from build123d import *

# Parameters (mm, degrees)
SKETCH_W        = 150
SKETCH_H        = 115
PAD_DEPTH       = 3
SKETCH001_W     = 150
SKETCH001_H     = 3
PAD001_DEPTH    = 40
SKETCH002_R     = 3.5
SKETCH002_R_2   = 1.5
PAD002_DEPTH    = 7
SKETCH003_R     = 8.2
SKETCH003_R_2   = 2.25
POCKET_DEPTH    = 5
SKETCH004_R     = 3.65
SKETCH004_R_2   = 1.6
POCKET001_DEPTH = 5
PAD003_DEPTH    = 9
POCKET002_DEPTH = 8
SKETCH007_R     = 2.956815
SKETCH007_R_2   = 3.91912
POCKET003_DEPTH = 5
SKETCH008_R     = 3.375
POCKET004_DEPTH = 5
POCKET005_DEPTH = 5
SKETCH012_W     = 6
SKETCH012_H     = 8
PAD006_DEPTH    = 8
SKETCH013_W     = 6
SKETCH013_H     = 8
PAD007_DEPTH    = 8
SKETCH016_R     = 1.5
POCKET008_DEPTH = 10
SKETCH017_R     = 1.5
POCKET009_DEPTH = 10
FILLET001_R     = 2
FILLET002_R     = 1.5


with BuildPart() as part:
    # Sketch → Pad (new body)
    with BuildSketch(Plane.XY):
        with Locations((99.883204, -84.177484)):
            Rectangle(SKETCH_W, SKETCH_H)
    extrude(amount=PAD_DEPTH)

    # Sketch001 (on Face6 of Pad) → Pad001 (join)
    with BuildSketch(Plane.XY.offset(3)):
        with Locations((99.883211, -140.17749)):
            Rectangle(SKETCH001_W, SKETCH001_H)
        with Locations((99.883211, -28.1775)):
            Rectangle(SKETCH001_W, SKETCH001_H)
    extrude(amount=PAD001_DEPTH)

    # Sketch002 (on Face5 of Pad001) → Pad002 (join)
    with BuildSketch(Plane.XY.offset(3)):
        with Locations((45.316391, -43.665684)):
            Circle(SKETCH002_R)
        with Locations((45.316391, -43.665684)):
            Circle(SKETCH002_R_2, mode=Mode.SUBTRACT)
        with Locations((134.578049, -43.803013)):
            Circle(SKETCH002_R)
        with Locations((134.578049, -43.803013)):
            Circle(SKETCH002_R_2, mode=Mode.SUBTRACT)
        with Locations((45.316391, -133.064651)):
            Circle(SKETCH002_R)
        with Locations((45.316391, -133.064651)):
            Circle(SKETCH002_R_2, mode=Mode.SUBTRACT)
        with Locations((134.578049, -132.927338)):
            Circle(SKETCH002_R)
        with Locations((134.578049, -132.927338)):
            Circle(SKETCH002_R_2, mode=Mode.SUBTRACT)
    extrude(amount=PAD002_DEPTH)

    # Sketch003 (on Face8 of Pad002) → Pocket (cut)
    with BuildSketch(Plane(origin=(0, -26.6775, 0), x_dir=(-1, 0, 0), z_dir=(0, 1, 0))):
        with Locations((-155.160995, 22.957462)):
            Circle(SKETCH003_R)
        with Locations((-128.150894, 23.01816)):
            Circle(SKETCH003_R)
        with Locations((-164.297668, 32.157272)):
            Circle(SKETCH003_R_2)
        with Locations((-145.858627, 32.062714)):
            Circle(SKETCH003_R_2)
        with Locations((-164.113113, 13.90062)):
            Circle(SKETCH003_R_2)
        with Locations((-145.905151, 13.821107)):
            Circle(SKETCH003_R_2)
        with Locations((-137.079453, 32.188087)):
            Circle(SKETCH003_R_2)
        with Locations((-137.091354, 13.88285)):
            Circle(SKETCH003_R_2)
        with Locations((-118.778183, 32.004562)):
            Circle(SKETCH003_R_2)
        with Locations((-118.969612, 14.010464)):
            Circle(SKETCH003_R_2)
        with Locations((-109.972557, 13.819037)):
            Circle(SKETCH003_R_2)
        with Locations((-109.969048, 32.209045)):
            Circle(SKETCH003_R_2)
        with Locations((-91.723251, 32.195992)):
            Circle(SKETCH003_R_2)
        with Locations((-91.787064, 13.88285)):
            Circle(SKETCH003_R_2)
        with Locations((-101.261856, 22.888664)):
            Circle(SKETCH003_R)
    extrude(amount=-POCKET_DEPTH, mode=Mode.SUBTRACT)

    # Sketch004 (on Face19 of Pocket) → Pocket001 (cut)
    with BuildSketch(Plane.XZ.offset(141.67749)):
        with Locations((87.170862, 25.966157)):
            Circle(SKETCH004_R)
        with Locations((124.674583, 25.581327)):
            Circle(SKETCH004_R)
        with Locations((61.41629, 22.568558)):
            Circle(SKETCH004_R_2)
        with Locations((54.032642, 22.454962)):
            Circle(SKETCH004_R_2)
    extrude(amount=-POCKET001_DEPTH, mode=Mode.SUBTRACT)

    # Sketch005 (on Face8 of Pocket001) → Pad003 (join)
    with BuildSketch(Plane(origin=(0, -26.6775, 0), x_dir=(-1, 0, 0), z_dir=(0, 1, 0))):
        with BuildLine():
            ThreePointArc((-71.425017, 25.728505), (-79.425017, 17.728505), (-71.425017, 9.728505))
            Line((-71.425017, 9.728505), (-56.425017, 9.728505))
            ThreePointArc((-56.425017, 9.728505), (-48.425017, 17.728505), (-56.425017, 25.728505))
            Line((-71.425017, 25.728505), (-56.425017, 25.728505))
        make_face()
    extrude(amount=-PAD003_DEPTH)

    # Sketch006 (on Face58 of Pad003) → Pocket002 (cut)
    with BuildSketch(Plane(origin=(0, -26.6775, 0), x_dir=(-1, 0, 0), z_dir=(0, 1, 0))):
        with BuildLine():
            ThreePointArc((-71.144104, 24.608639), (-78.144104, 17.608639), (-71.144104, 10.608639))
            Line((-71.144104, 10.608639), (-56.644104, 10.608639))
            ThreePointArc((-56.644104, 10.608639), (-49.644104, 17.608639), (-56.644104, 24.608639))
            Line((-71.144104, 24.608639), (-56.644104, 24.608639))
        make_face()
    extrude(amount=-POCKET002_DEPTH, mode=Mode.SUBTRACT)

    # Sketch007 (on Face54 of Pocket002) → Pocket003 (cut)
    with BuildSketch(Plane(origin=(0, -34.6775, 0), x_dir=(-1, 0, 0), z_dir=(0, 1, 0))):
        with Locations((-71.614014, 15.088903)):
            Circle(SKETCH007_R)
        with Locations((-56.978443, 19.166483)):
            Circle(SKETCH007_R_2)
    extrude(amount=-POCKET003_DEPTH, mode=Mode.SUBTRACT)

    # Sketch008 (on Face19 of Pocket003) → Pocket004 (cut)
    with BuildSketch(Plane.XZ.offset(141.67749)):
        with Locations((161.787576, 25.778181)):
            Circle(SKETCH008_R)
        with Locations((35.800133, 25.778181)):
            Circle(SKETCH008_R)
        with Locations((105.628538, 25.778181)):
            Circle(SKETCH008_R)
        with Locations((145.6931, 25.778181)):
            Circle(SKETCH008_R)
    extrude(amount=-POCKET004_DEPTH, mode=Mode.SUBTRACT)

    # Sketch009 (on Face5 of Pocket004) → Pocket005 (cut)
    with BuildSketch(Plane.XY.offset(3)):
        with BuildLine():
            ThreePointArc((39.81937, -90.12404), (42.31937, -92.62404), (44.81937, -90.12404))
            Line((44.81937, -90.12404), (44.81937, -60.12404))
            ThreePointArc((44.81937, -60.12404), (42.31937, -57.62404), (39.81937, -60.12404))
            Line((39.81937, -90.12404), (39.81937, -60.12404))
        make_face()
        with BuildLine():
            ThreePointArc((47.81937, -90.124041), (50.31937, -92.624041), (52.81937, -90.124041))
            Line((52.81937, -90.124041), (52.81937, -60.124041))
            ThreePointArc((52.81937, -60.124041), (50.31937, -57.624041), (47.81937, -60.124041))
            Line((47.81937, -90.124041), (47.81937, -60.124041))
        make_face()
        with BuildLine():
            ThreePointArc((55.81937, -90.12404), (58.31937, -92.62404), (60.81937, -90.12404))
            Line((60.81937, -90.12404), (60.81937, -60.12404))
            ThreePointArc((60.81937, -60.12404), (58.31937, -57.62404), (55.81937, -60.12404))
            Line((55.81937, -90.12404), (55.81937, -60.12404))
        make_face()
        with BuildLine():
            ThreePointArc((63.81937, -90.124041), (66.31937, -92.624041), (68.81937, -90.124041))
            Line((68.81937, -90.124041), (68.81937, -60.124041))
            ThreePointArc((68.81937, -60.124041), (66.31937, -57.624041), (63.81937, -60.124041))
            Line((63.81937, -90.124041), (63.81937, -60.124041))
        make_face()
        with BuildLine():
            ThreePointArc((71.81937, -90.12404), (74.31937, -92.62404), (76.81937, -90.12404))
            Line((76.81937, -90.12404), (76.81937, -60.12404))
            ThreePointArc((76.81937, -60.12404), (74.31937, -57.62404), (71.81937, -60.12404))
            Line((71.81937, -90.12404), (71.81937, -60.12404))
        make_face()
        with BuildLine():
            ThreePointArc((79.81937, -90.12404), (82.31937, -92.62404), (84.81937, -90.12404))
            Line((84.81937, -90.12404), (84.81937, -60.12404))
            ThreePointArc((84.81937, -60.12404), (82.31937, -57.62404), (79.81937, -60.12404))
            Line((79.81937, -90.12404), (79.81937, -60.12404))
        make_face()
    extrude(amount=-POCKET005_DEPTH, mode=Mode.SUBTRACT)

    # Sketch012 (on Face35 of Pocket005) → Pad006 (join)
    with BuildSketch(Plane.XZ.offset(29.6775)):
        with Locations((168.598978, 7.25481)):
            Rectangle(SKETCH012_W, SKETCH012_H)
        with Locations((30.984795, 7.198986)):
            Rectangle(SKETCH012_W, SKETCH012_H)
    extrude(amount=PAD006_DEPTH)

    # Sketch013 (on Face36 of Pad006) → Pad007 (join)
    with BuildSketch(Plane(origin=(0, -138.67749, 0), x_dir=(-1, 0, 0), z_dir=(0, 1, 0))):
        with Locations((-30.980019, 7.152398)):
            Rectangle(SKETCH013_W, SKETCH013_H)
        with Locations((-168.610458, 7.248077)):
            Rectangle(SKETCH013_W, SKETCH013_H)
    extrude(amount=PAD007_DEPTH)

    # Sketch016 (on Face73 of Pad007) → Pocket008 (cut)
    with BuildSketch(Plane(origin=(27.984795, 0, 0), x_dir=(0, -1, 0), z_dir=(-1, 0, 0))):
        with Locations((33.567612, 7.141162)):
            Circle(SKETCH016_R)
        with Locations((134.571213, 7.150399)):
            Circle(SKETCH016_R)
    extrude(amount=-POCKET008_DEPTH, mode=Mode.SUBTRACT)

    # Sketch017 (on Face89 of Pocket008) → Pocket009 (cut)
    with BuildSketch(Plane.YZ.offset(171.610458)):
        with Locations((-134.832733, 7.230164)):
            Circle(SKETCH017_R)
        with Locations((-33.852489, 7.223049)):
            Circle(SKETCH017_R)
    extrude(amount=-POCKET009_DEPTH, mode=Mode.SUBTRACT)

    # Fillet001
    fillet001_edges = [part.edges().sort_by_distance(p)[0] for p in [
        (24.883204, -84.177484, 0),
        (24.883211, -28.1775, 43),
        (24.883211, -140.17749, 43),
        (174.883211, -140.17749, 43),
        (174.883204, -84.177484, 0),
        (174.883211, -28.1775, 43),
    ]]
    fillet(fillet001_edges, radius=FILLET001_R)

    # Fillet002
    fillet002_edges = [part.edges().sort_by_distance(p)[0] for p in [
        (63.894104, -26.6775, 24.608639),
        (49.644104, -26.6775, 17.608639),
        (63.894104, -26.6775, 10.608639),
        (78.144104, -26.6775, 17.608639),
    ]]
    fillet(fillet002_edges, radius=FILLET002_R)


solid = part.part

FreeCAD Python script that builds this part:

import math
import FreeCAD as App
import Part
import Sketcher

V = App.Vector
Q = App.Units.Quantity


def edges_at(feature, points):
    """Names of the edges that pass closest to the given points."""
    edges = feature.Shape.Edges
    near = lambda p: min(range(len(edges)), key=lambda i: edges[i].distToShape(Part.Vertex(*p))[0])
    return sorted({f"Edge{near(p) + 1}" for p in points})


def add_polygon(sketch, points):
    """Adds a closed chain of lines whose ends are joined by coincident constraints."""
    first, n = sketch.GeometryCount, len(points)
    for a, b in zip(points, points[1:] + points[:1]):
        sketch.addGeometry(Part.LineSegment(App.Vector(*a, 0), App.Vector(*b, 0)), False)
    for i in range(n):
        sketch.addConstraint(Sketcher.Constraint("Coincident", first + i, 2, first + (i + 1) % n, 1))

doc = App.newDocument("Part")
body = doc.addObject("PartDesign::Body", "Body")

# Sketch on XY plane
sketch1 = doc.addObject("Sketcher::SketchObject", "Sketch")
body.addObject(sketch1)
sketch1.AttachmentSupport = (doc.XY_Plane, [""])
sketch1.MapMode = "FlatFace"
add_polygon(sketch1, [(24.883204, -26.677484), (24.883204, -141.677484), (174.883204, -141.677484), (174.883204, -26.677484)])  # lines 0-3
sketch1.addConstraint(Sketcher.Constraint("Vertical", 0))
sketch1.addConstraint(Sketcher.Constraint("Horizontal", 1))
sketch1.addConstraint(Sketcher.Constraint("Vertical", 2))
sketch1.addConstraint(Sketcher.Constraint("Horizontal", 3))
sketch1.addConstraint(Sketcher.Constraint("DistanceX", 1, 1, 1, 2, Q("150 mm")))
sketch1.addConstraint(Sketcher.Constraint("DistanceY", 0, 2, 0, 1, Q("115 mm")))
sketch1.addConstraint(Sketcher.Constraint("DistanceX", -1, 1, 0, 2, Q("24.883204 mm")))
sketch1.addConstraint(Sketcher.Constraint("DistanceY", 0, 2, -1, 1, Q("141.677484 mm")))
pad1 = doc.addObject("PartDesign::Pad", "Pad")
body.addObject(pad1)
pad1.Profile = sketch1
pad1.Length = 3

# Sketch on XY plane
sketch2 = doc.addObject("Sketcher::SketchObject", "Sketch001")
body.addObject(sketch2)
sketch2.AttachmentSupport = (doc.XY_Plane, [""])
sketch2.MapMode = "FlatFace"
sketch2.AttachmentOffset = App.Placement(V(0, 0, 3), App.Rotation())
add_polygon(sketch2, [(24.883211, -138.67749), (24.883211, -141.67749), (174.883211, -141.67749), (174.883211, -138.67749)])  # lines 0-3
add_polygon(sketch2, [(24.883211, -26.6775), (24.883211, -29.6775), (174.883211, -29.6775), (174.883211, -26.6775)])  # lines 4-7
sketch2.addConstraint(Sketcher.Constraint("Vertical", 0))
sketch2.addConstraint(Sketcher.Constraint("Horizontal", 1))
sketch2.addConstraint(Sketcher.Constraint("Vertical", 2))
sketch2.addConstraint(Sketcher.Constraint("Horizontal", 3))
sketch2.addConstraint(Sketcher.Constraint("Vertical", 4))
sketch2.addConstraint(Sketcher.Constraint("Horizontal", 5))
sketch2.addConstraint(Sketcher.Constraint("Vertical", 6))
sketch2.addConstraint(Sketcher.Constraint("Horizontal", 7))
sketch2.addConstraint(Sketcher.Constraint("Vertical", 3, 2, 4, 2))
sketch2.addConstraint(Sketcher.Constraint("Vertical", 2, 2, 5, 2))
sketch2.addConstraint(Sketcher.Constraint("Equal", 2, 4))
sketch2.addConstraint(Sketcher.Constraint("DistanceX", 1, 1, 1, 2, Q("150 mm")))
sketch2.addConstraint(Sketcher.Constraint("DistanceY", 0, 2, 0, 1, Q("3 mm")))
sketch2.addConstraint(Sketcher.Constraint("DistanceY", 4, 2, -1, 1, Q("29.6775 mm")))
sketch2.addConstraint(Sketcher.Constraint("DistanceX", -1, 1, 0, 2, Q("24.883211 mm")))
sketch2.addConstraint(Sketcher.Constraint("DistanceY", 0, 2, -1, 1, Q("141.67749 mm")))
pad2 = doc.addObject("PartDesign::Pad", "Pad001")
body.addObject(pad2)
pad2.Profile = sketch2
pad2.Length = 40

# Sketch on XY plane
sketch3 = doc.addObject("Sketcher::SketchObject", "Sketch002")
body.addObject(sketch3)
sketch3.AttachmentSupport = (doc.XY_Plane, [""])
sketch3.MapMode = "FlatFace"
sketch3.AttachmentOffset = App.Placement(V(0, 0, 3), App.Rotation())
sketch3.addGeometry(Part.Circle(V(45.316391, -43.665684, 0), V(0, 0, 1), 3.5), False)
sketch3.addGeometry(Part.Circle(V(45.316391, -43.665684, 0), V(0, 0, 1), 1.5), False)
sketch3.addGeometry(Part.Circle(V(134.578049, -43.803013, 0), V(0, 0, 1), 3.5), False)
sketch3.addGeometry(Part.Circle(V(134.578049, -43.803013, 0), V(0, 0, 1), 1.5), False)
sketch3.addGeometry(Part.Circle(V(45.316391, -133.064651, 0), V(0, 0, 1), 3.5), False)
sketch3.addGeometry(Part.Circle(V(45.316391, -133.064651, 0), V(0, 0, 1), 1.5), False)
sketch3.addGeometry(Part.Circle(V(134.578049, -132.927338, 0), V(0, 0, 1), 3.5), False)
sketch3.addGeometry(Part.Circle(V(134.578049, -132.927338, 0), V(0, 0, 1), 1.5), False)
sketch3.addConstraint(Sketcher.Constraint("Coincident", 1, 3, 0, 3))
sketch3.addConstraint(Sketcher.Constraint("Coincident", 3, 3, 2, 3))
sketch3.addConstraint(Sketcher.Constraint("Coincident", 5, 3, 4, 3))
sketch3.addConstraint(Sketcher.Constraint("Coincident", 7, 3, 6, 3))
sketch3.addConstraint(Sketcher.Constraint("Equal", 0, 2))
sketch3.addConstraint(Sketcher.Constraint("Equal", 1, 3))
sketch3.addConstraint(Sketcher.Constraint("Equal", 2, 4))
sketch3.addConstraint(Sketcher.Constraint("Equal", 3, 5))
sketch3.addConstraint(Sketcher.Constraint("Equal", 4, 6))
sketch3.addConstraint(Sketcher.Constraint("Equal", 5, 7))
sketch3.addConstraint(Sketcher.Constraint("Vertical", 1, 3, 4, 3))
sketch3.addConstraint(Sketcher.Constraint("Vertical", 3, 3, 6, 3))
sketch3.addConstraint(Sketcher.Constraint("Diameter", 0, Q("7 mm")))
sketch3.addConstraint(Sketcher.Constraint("Diameter", 1, Q("3 mm")))
sketch3.addConstraint(Sketcher.Constraint("DistanceX", -1, 1, 0, 3, Q("45.316391 mm")))
sketch3.addConstraint(Sketcher.Constraint("DistanceX", -1, 1, 2, 3, Q("134.578049 mm")))
sketch3.addConstraint(Sketcher.Constraint("DistanceY", 4, 3, -1, 1, Q("133.064651 mm")))
sketch3.addConstraint(Sketcher.Constraint("DistanceY", 6, 3, -1, 1, Q("132.927338 mm")))
sketch3.addConstraint(Sketcher.Constraint("DistanceY", 2, 3, 0, 3, Q("0.137329 mm")))
sketch3.addConstraint(Sketcher.Constraint("DistanceY", 4, 3, 2, 3, Q("89.261638 mm")))
pad3 = doc.addObject("PartDesign::Pad", "Pad002")
body.addObject(pad3)
pad3.Profile = sketch3
pad3.Length = 7

# Sketch on XZ plane
sketch4 = doc.addObject("Sketcher::SketchObject", "Sketch003")
body.addObject(sketch4)
sketch4.AttachmentSupport = (doc.XZ_Plane, [""])
sketch4.MapMode = "FlatFace"
sketch4.AttachmentOffset = App.Placement(V(0, 0, 26.6775), App.Rotation())
sketch4.addGeometry(Part.Circle(V(155.160995, 22.957462, 0), V(0, 0, 1), 8.2), False)
sketch4.addGeometry(Part.Circle(V(128.150894, 23.01816, 0), V(0, 0, 1), 8.2), False)
sketch4.addGeometry(Part.Circle(V(164.297668, 32.157272, 0), V(0, 0, 1), 2.25), False)
sketch4.addGeometry(Part.Circle(V(145.858627, 32.062714, 0), V(0, 0, 1), 2.25), False)
sketch4.addGeometry(Part.Circle(V(164.113113, 13.90062, 0), V(0, 0, 1), 2.25), False)
sketch4.addGeometry(Part.Circle(V(145.905151, 13.821107, 0), V(0, 0, 1), 2.25), False)
sketch4.addGeometry(Part.Circle(V(137.079453, 32.188087, 0), V(0, 0, 1), 2.25), False)
sketch4.addGeometry(Part.Circle(V(137.091354, 13.88285, 0), V(0, 0, 1), 2.25), False)
sketch4.addGeometry(Part.Circle(V(118.778183, 32.004562, 0), V(0, 0, 1), 2.25), False)
sketch4.addGeometry(Part.Circle(V(118.969612, 14.010464, 0), V(0, 0, 1), 2.25), False)
sketch4.addGeometry(Part.Circle(V(109.972557, 13.819037, 0), V(0, 0, 1), 2.25), False)
sketch4.addGeometry(Part.Circle(V(109.969048, 32.209045, 0), V(0, 0, 1), 2.25), False)
sketch4.addGeometry(Part.Circle(V(91.723251, 32.195992, 0), V(0, 0, 1), 2.25), False)
sketch4.addGeometry(Part.Circle(V(91.787064, 13.88285, 0), V(0, 0, 1), 2.25), False)
sketch4.addGeometry(Part.Circle(V(101.261856, 22.888664, 0), V(0, 0, 1), 8.2), False)
sketch4.addConstraint(Sketcher.Constraint("Equal", 0, 1))
sketch4.addConstraint(Sketcher.Constraint("Equal", 2, 3))
sketch4.addConstraint(Sketcher.Constraint("Equal", 3, 4))
sketch4.addConstraint(Sketcher.Constraint("Equal", 4, 5))
sketch4.addConstraint(Sketcher.Constraint("Equal", 5, 6))
sketch4.addConstraint(Sketcher.Constraint("Equal", 6, 7))
sketch4.addConstraint(Sketcher.Constraint("Equal", 7, 8))
sketch4.addConstraint(Sketcher.Constraint("Equal", 8, 9))
sketch4.addConstraint(Sketcher.Constraint("Equal", 9, 10))
sketch4.addConstraint(Sketcher.Constraint("Equal", 10, 11))
sketch4.addConstraint(Sketcher.Constraint("Equal", 11, 12))
sketch4.addConstraint(Sketcher.Constraint("Equal", 12, 13))
sketch4.addConstraint(Sketcher.Constraint("Equal", 1, 14))
sketch4.addConstraint(Sketcher.Constraint("Horizontal", 7, 3, 13, 3))
sketch4.addConstraint(Sketcher.Constraint("Diameter", 0, Q("16.4 mm")))
sketch4.addConstraint(Sketcher.Constraint("Diameter", 2, Q("4.5 mm")))
sketch4.addConstraint(Sketcher.Constraint("DistanceX", 1, 3, 0, 3, Q("27.010101 mm")))
sketch4.addConstraint(Sketcher.Constraint("DistanceY", 0, 3, 1, 3, Q("0.060698 mm")))
sketch4.addConstraint(Sketcher.Constraint("DistanceX", 6, 3, 7, 3, Q("0.011901 mm")))
sketch4.addConstraint(Sketcher.Constraint("DistanceY", 1, 3, 8, 3, Q("8.986402 mm")))
sketch4.addConstraint(Sketcher.Constraint("DistanceY", 9, 3, 8, 3, Q("17.994098 mm")))
sketch4.addConstraint(Sketcher.Constraint("DistanceX", 14, 3, 10, 3, Q("8.710701 mm")))
sketch4.addConstraint(Sketcher.Constraint("DistanceY", 14, 3, 8, 3, Q("9.115898 mm")))
sketch4.addConstraint(Sketcher.Constraint("DistanceY", -1, 1, 0, 3, Q("22.957462 mm")))
sketch4.addConstraint(Sketcher.Constraint("DistanceY", -1, 1, 4, 3, Q("13.90062 mm")))
sketch4.addConstraint(Sketcher.Constraint("DistanceX", -1, 1, 5, 3, Q("145.905151 mm")))
sketch4.addConstraint(Sketcher.Constraint("DistanceY", -1, 1, 7, 3, Q("13.88285 mm")))
sketch4.addConstraint(Sketcher.Constraint("DistanceX", -1, 1, 9, 3, Q("118.969612 mm")))
sketch4.addConstraint(Sketcher.Constraint("DistanceX", -1, 1, 11, 3, Q("109.969048 mm")))
sketch4.addConstraint(Sketcher.Constraint("DistanceX", -1, 1, 12, 3, Q("91.723251 mm")))
sketch4.addConstraint(Sketcher.Constraint("DistanceY", -1, 1, 12, 3, Q("32.195992 mm")))
sketch4.addConstraint(Sketcher.Constraint("DistanceY", 0, 3, 2, 3, Q("9.19981 mm")))
sketch4.addConstraint(Sketcher.Constraint("DistanceX", 3, 3, 0, 3, Q("9.302368 mm")))
sketch4.addConstraint(Sketcher.Constraint("DistanceX", 3, 3, 2, 3, Q("18.439041 mm")))
sketch4.addConstraint(Sketcher.Constraint("DistanceX", 1, 3, 4, 3, Q("35.962219 mm")))
sketch4.addConstraint(Sketcher.Constraint("DistanceX", 1, 3, 6, 3, Q("8.928559 mm")))
sketch4.addConstraint(Sketcher.Constraint("DistanceY", 5, 3, 6, 3, Q("18.36698 mm")))
sketch4.addConstraint(Sketcher.Constraint("DistanceX", 8, 3, 1, 3, Q("9.372711 mm")))
sketch4.addConstraint(Sketcher.Constraint("DistanceY", 8, 3, 3, 3, Q("0.058152 mm")))
sketch4.addConstraint(Sketcher.Constraint("DistanceX", 9, 3, 1, 3, Q("9.181282 mm")))
sketch4.addConstraint(Sketcher.Constraint("DistanceY", 10, 3, 6, 3, Q("18.36905 mm")))
sketch4.addConstraint(Sketcher.Constraint("DistanceX", 11, 3, 10, 3, Q("0.003509 mm")))
sketch4.addConstraint(Sketcher.Constraint("DistanceY", 10, 3, 11, 3, Q("18.390008 mm")))
sketch4.addConstraint(Sketcher.Constraint("DistanceY", 9, 3, 11, 3, Q("18.198581 mm")))
sketch4.addConstraint(Sketcher.Constraint("DistanceX", 13, 3, 8, 3, Q("26.991119 mm")))
pocket1 = doc.addObject("PartDesign::Pocket", "Pocket")
body.addObject(pocket1)
pocket1.Profile = sketch4
pocket1.Length = 5
pocket1.Reversed = True

# Sketch on XZ plane
sketch5 = doc.addObject("Sketcher::SketchObject", "Sketch004")
body.addObject(sketch5)
sketch5.AttachmentSupport = (doc.XZ_Plane, [""])
sketch5.MapMode = "FlatFace"
sketch5.AttachmentOffset = App.Placement(V(0, 0, 141.67749), App.Rotation())
sketch5.addGeometry(Part.Circle(V(87.170862, 25.966157, 0), V(0, 0, 1), 3.65), False)
sketch5.addGeometry(Part.Circle(V(124.674583, 25.581327, 0), V(0, 0, 1), 3.65), False)
sketch5.addGeometry(Part.Circle(V(61.41629, 22.568558, 0), V(0, 0, 1), 1.6), False)
sketch5.addGeometry(Part.Circle(V(54.032642, 22.454962, 0), V(0, 0, 1), 1.6), False)
sketch5.addConstraint(Sketcher.Constraint("Equal", 0, 1))
sketch5.addConstraint(Sketcher.Constraint("Equal", 2, 3))
sketch5.addConstraint(Sketcher.Constraint("Diameter", 0, Q("7.3 mm")))
sketch5.addConstraint(Sketcher.Constraint("Diameter", 2, Q("3.2 mm")))
sketch5.addConstraint(Sketcher.Constraint("DistanceY", 2, 3, 0, 3, Q("3.397599 mm")))
sketch5.addConstraint(Sketcher.Constraint("DistanceX", -1, 1, 0, 3, Q("87.170862 mm")))
sketch5.addConstraint(Sketcher.Constraint("DistanceX", -1, 1, 2, 3, Q("61.41629 mm")))
sketch5.addConstraint(Sketcher.Constraint("DistanceY", -1, 1, 3, 3, Q("22.454962 mm")))
sketch5.addConstraint(Sketcher.Constraint("DistanceX", 0, 3, 1, 3, Q("37.503721 mm")))
sketch5.addConstraint(Sketcher.Constraint("DistanceY", 1, 3, 0, 3, Q("0.38483 mm")))
sketch5.addConstraint(Sketcher.Constraint("DistanceX", 3, 3, 0, 3, Q("33.13822 mm")))
sketch5.addConstraint(Sketcher.Constraint("DistanceY", -1, 1, 0, 3, Q("25.966157 mm")))
pocket2 = doc.addObject("PartDesign::Pocket", "Pocket001")
body.addObject(pocket2)
pocket2.Profile = sketch5
pocket2.Length = 5

# Sketch on XZ plane
sketch6 = doc.addObject("Sketcher::SketchObject", "Sketch005")
body.addObject(sketch6)
sketch6.AttachmentSupport = (doc.XZ_Plane, [""])
sketch6.MapMode = "FlatFace"
sketch6.AttachmentOffset = App.Placement(V(0, 0, 26.6775), App.Rotation())
sketch6.addGeometry(Part.ArcOfCircle(Part.Circle(V(71.425017, 17.728505, 0), V(0, 0, 1), 8), math.radians(-90), math.radians(90)), False)
sketch6.addGeometry(Part.LineSegment(V(71.425017, 9.728505, 0), V(56.425017, 9.728505, 0)), False)
sketch6.addGeometry(Part.ArcOfCircle(Part.Circle(V(56.425017, 17.728505, 0), V(0, 0, 1), 8), math.radians(90), math.radians(270)), False)
sketch6.addGeometry(Part.LineSegment(V(56.425017, 25.728505, 0), V(71.425017, 25.728505, 0)), False)
sketch6.addConstraint(Sketcher.Constraint("Tangent", 0, 1, 1, 1))
sketch6.addConstraint(Sketcher.Constraint("Tangent", 1, 2, 2, 2))
sketch6.addConstraint(Sketcher.Constraint("Tangent", 2, 1, 3, 1))
sketch6.addConstraint(Sketcher.Constraint("Tangent", 3, 2, 0, 2))
sketch6.addConstraint(Sketcher.Constraint("Horizontal", 1))
sketch6.addConstraint(Sketcher.Constraint("Horizontal", 3))
sketch6.addConstraint(Sketcher.Constraint("Radius", 0, Q("8 mm")))
sketch6.addConstraint(Sketcher.Constraint("DistanceX", 1, 2, 1, 1, Q("15 mm")))
sketch6.addConstraint(Sketcher.Constraint("DistanceX", -1, 1, 0, 3, Q("71.425017 mm")))
sketch6.addConstraint(Sketcher.Constraint("DistanceY", -1, 1, 0, 3, Q("17.728505 mm")))
pad4 = doc.addObject("PartDesign::Pad", "Pad003")
body.addObject(pad4)
pad4.Profile = sketch6
pad4.Length = 9

# Sketch on XZ plane
sketch7 = doc.addObject("Sketcher::SketchObject", "Sketch006")
body.addObject(sketch7)
sketch7.AttachmentSupport = (doc.XZ_Plane, [""])
sketch7.MapMode = "FlatFace"
sketch7.AttachmentOffset = App.Placement(V(0, 0, 26.6775), App.Rotation())
sketch7.addGeometry(Part.ArcOfCircle(Part.Circle(V(71.144104, 17.608639, 0), V(0, 0, 1), 7), math.radians(-90), math.radians(90)), False)
sketch7.addGeometry(Part.LineSegment(V(71.144104, 10.608639, 0), V(56.644104, 10.608639, 0)), False)
sketch7.addGeometry(Part.ArcOfCircle(Part.Circle(V(56.644104, 17.608639, 0), V(0, 0, 1), 7), math.radians(90), math.radians(270)), False)
sketch7.addGeometry(Part.LineSegment(V(56.644104, 24.608639, 0), V(71.144104, 24.608639, 0)), False)
sketch7.addConstraint(Sketcher.Constraint("Tangent", 0, 1, 1, 1))
sketch7.addConstraint(Sketcher.Constraint("Tangent", 1, 2, 2, 2))
sketch7.addConstraint(Sketcher.Constraint("Tangent", 2, 1, 3, 1))
sketch7.addConstraint(Sketcher.Constraint("Tangent", 3, 2, 0, 2))
sketch7.addConstraint(Sketcher.Constraint("Horizontal", 1))
sketch7.addConstraint(Sketcher.Constraint("Horizontal", 3))
sketch7.addConstraint(Sketcher.Constraint("Radius", 0, Q("7 mm")))
sketch7.addConstraint(Sketcher.Constraint("DistanceX", 1, 2, 1, 1, Q("14.5 mm")))
sketch7.addConstraint(Sketcher.Constraint("DistanceY", -1, 1, 0, 3, Q("17.608639 mm")))
sketch7.addConstraint(Sketcher.Constraint("DistanceX", -1, 1, 0, 3, Q("71.144104 mm")))
pocket3 = doc.addObject("PartDesign::Pocket", "Pocket002")
body.addObject(pocket3)
pocket3.Profile = sketch7
pocket3.Length = 8
pocket3.Reversed = True

# Sketch on XZ plane
sketch8 = doc.addObject("Sketcher::SketchObject", "Sketch007")
body.addObject(sketch8)
sketch8.AttachmentSupport = (doc.XZ_Plane, [""])
sketch8.MapMode = "FlatFace"
sketch8.AttachmentOffset = App.Placement(V(0, 0, 34.6775), App.Rotation())
sketch8.addGeometry(Part.Circle(V(71.614014, 15.088903, 0), V(0, 0, 1), 2.956815), False)
sketch8.addGeometry(Part.Circle(V(56.978443, 19.166483, 0), V(0, 0, 1), 3.91912), False)
sketch8.addConstraint(Sketcher.Constraint("Diameter", 0, Q("5.91363 mm")))
sketch8.addConstraint(Sketcher.Constraint("Diameter", 1, Q("7.83824 mm")))
sketch8.addConstraint(Sketcher.Constraint("DistanceX", 1, 3, 0, 3, Q("14.635571 mm")))
sketch8.addConstraint(Sketcher.Constraint("DistanceY", 0, 3, 1, 3, Q("4.07758 mm")))
sketch8.addConstraint(Sketcher.Constraint("DistanceX", -1, 1, 0, 3, Q("71.614014 mm")))
sketch8.addConstraint(Sketcher.Constraint("DistanceY", -1, 1, 0, 3, Q("15.088903 mm")))
pocket4 = doc.addObject("PartDesign::Pocket", "Pocket003")
body.addObject(pocket4)
pocket4.Profile = sketch8
pocket4.Length = 5
pocket4.Reversed = True

# Sketch on XZ plane
sketch9 = doc.addObject("Sketcher::SketchObject", "Sketch008")
body.addObject(sketch9)
sketch9.AttachmentSupport = (doc.XZ_Plane, [""])
sketch9.MapMode = "FlatFace"
sketch9.AttachmentOffset = App.Placement(V(0, 0, 141.67749), App.Rotation())
sketch9.addGeometry(Part.Circle(V(161.787576, 25.778181, 0), V(0, 0, 1), 3.375), False)
sketch9.addGeometry(Part.Circle(V(35.800133, 25.778181, 0), V(0, 0, 1), 3.375), False)
sketch9.addGeometry(Part.Circle(V(105.628538, 25.778181, 0), V(0, 0, 1), 3.375), False)
sketch9.addGeometry(Part.Circle(V(145.6931, 25.778181, 0), V(0, 0, 1), 3.375), False)
sketch9.addConstraint(Sketcher.Constraint("Equal", 0, 1))
sketch9.addConstraint(Sketcher.Constraint("Equal", 1, 2))
sketch9.addConstraint(Sketcher.Constraint("Equal", 2, 3))
sketch9.addConstraint(Sketcher.Constraint("Horizontal", 0, 3, 1, 3))
sketch9.addConstraint(Sketcher.Constraint("Horizontal", 1, 3, 2, 3))
sketch9.addConstraint(Sketcher.Constraint("Horizontal", 2, 3, 3, 3))
sketch9.addConstraint(Sketcher.Constraint("Diameter", 0, Q("6.75 mm")))
sketch9.addConstraint(Sketcher.Constraint("DistanceX", -1, 1, 3, 3, Q("145.6931 mm")))
sketch9.addConstraint(Sketcher.Constraint("DistanceY", -1, 1, 0, 3, Q("25.778181 mm")))
sketch9.addConstraint(Sketcher.Constraint("DistanceX", -1, 1, 2, 3, Q("105.628538 mm")))
sketch9.addConstraint(Sketcher.Constraint("DistanceX", -1, 1, 0, 3, Q("161.787576 mm")))
sketch9.addConstraint(Sketcher.Constraint("DistanceX", -1, 1, 1, 3, Q("35.800133 mm")))
pocket5 = doc.addObject("PartDesign::Pocket", "Pocket004")
body.addObject(pocket5)
pocket5.Profile = sketch9
pocket5.Length = 5

# Sketch on XY plane
sketch10 = doc.addObject("Sketcher::SketchObject", "Sketch009")
body.addObject(sketch10)
sketch10.AttachmentSupport = (doc.XY_Plane, [""])
sketch10.MapMode = "FlatFace"
sketch10.AttachmentOffset = App.Placement(V(0, 0, 3), App.Rotation())
sketch10.addGeometry(Part.ArcOfCircle(Part.Circle(V(42.31937, -90.12404, 0), V(0, 0, 1), 2.5), math.radians(180), math.radians(360)), False)
sketch10.addGeometry(Part.LineSegment(V(44.81937, -90.12404, 0), V(44.81937, -60.12404, 0)), False)
sketch10.addGeometry(Part.ArcOfCircle(Part.Circle(V(42.31937, -60.12404, 0), V(0, 0, 1), 2.5), math.radians(0), math.radians(180)), False)
sketch10.addGeometry(Part.LineSegment(V(39.81937, -60.12404, 0), V(39.81937, -90.12404, 0)), False)
sketch10.addGeometry(Part.ArcOfCircle(Part.Circle(V(50.31937, -90.124041, 0), V(0, 0, 1), 2.5), math.radians(180), math.radians(360)), False)
sketch10.addGeometry(Part.LineSegment(V(52.81937, -90.124041, 0), V(52.81937, -60.124041, 0)), False)
sketch10.addGeometry(Part.ArcOfCircle(Part.Circle(V(50.31937, -60.124041, 0), V(0, 0, 1), 2.5), math.radians(0), math.radians(180)), False)
sketch10.addGeometry(Part.LineSegment(V(47.81937, -60.124041, 0), V(47.81937, -90.124041, 0)), False)
sketch10.addGeometry(Part.ArcOfCircle(Part.Circle(V(58.31937, -90.12404, 0), V(0, 0, 1), 2.5), math.radians(180), math.radians(360)), False)
sketch10.addGeometry(Part.LineSegment(V(60.81937, -90.12404, 0), V(60.81937, -60.12404, 0)), False)
sketch10.addGeometry(Part.ArcOfCircle(Part.Circle(V(58.31937, -60.12404, 0), V(0, 0, 1), 2.5), math.radians(0), math.radians(180)), False)
sketch10.addGeometry(Part.LineSegment(V(55.81937, -60.12404, 0), V(55.81937, -90.12404, 0)), False)
sketch10.addGeometry(Part.ArcOfCircle(Part.Circle(V(66.31937, -90.124041, 0), V(0, 0, 1), 2.5), math.radians(180), math.radians(360)), False)
sketch10.addGeometry(Part.LineSegment(V(68.81937, -90.124041, 0), V(68.81937, -60.124041, 0)), False)
sketch10.addGeometry(Part.ArcOfCircle(Part.Circle(V(66.31937, -60.124041, 0), V(0, 0, 1), 2.5), math.radians(0), math.radians(180)), False)
sketch10.addGeometry(Part.LineSegment(V(63.81937, -60.124041, 0), V(63.81937, -90.124041, 0)), False)
sketch10.addGeometry(Part.ArcOfCircle(Part.Circle(V(74.31937, -90.12404, 0), V(0, 0, 1), 2.5), math.radians(180), math.radians(360)), False)
sketch10.addGeometry(Part.LineSegment(V(76.81937, -90.12404, 0), V(76.81937, -60.12404, 0)), False)
sketch10.addGeometry(Part.ArcOfCircle(Part.Circle(V(74.31937, -60.12404, 0), V(0, 0, 1), 2.5), math.radians(0), math.radians(180)), False)
sketch10.addGeometry(Part.LineSegment(V(71.81937, -60.12404, 0), V(71.81937, -90.12404, 0)), False)
sketch10.addGeometry(Part.ArcOfCircle(Part.Circle(V(82.31937, -90.12404, 0), V(0, 0, 1), 2.5), math.radians(180), math.radians(360)), False)
sketch10.addGeometry(Part.LineSegment(V(84.81937, -90.12404, 0), V(84.81937, -60.12404, 0)), False)
sketch10.addGeometry(Part.ArcOfCircle(Part.Circle(V(82.31937, -60.12404, 0), V(0, 0, 1), 2.5), math.radians(0), math.radians(180)), False)
sketch10.addGeometry(Part.LineSegment(V(79.81937, -60.12404, 0), V(79.81937, -90.12404, 0)), False)
sketch10.addConstraint(Sketcher.Constraint("Tangent", 0, 2, 1, 1))
sketch10.addConstraint(Sketcher.Constraint("Tangent", 1, 2, 2, 1))
sketch10.addConstraint(Sketcher.Constraint("Tangent", 2, 2, 3, 1))
sketch10.addConstraint(Sketcher.Constraint("Tangent", 3, 2, 0, 1))
sketch10.addConstraint(Sketcher.Constraint("Tangent", 4, 2, 5, 1))
sketch10.addConstraint(Sketcher.Constraint("Tangent", 5, 2, 6, 1))
sketch10.addConstraint(Sketcher.Constraint("Tangent", 6, 2, 7, 1))
sketch10.addConstraint(Sketcher.Constraint("Tangent", 7, 2, 4, 1))
sketch10.addConstraint(Sketcher.Constraint("Tangent", 8, 2, 9, 1))
sketch10.addConstraint(Sketcher.Constraint("Tangent", 9, 2, 10, 1))
sketch10.addConstraint(Sketcher.Constraint("Tangent", 10, 2, 11, 1))
sketch10.addConstraint(Sketcher.Constraint("Tangent", 11, 2, 8, 1))
sketch10.addConstraint(Sketcher.Constraint("Tangent", 12, 2, 13, 1))
sketch10.addConstraint(Sketcher.Constraint("Tangent", 13, 2, 14, 1))
sketch10.addConstraint(Sketcher.Constraint("Tangent", 14, 2, 15, 1))
sketch10.addConstraint(Sketcher.Constraint("Tangent", 15, 2, 12, 1))
sketch10.addConstraint(Sketcher.Constraint("Tangent", 16, 2, 17, 1))
sketch10.addConstraint(Sketcher.Constraint("Tangent", 17, 2, 18, 1))
sketch10.addConstraint(Sketcher.Constraint("Tangent", 18, 2, 19, 1))
sketch10.addConstraint(Sketcher.Constraint("Tangent", 19, 2, 16, 1))
sketch10.addConstraint(Sketcher.Constraint("Tangent", 20, 2, 21, 1))
sketch10.addConstraint(Sketcher.Constraint("Tangent", 21, 2, 22, 1))
sketch10.addConstraint(Sketcher.Constraint("Tangent", 22, 2, 23, 1))
sketch10.addConstraint(Sketcher.Constraint("Tangent", 23, 2, 20, 1))
sketch10.addConstraint(Sketcher.Constraint("Vertical", 1))
sketch10.addConstraint(Sketcher.Constraint("Vertical", 3))
sketch10.addConstraint(Sketcher.Constraint("Vertical", 5))
sketch10.addConstraint(Sketcher.Constraint("Vertical", 7))
sketch10.addConstraint(Sketcher.Constraint("Vertical", 9))
sketch10.addConstraint(Sketcher.Constraint("Vertical", 11))
sketch10.addConstraint(Sketcher.Constraint("Vertical", 13))
sketch10.addConstraint(Sketcher.Constraint("Vertical", 15))
sketch10.addConstraint(Sketcher.Constraint("Vertical", 17))
sketch10.addConstraint(Sketcher.Constraint("Vertical", 19))
sketch10.addConstraint(Sketcher.Constraint("Vertical", 21))
sketch10.addConstraint(Sketcher.Constraint("Vertical", 23))
sketch10.addConstraint(Sketcher.Constraint("Equal", 2, 4))
sketch10.addConstraint(Sketcher.Constraint("Equal", 6, 8))
sketch10.addConstraint(Sketcher.Constraint("Equal", 10, 12))
sketch10.addConstraint(Sketcher.Constraint("Equal", 14, 16))
sketch10.addConstraint(Sketcher.Constraint("Equal", 18, 20))
sketch10.addConstraint(Sketcher.Constraint("Horizontal", 0, 3, 4, 3))
sketch10.addConstraint(Sketcher.Constraint("Horizontal", 2, 3, 6, 3))
sketch10.addConstraint(Sketcher.Constraint("Horizontal", 4, 3, 8, 3))
sketch10.addConstraint(Sketcher.Constraint("Horizontal", 6, 3, 10, 3))
sketch10.addConstraint(Sketcher.Constraint("Horizontal", 8, 3, 12, 3))
sketch10.addConstraint(Sketcher.Constraint("Horizontal", 10, 3, 14, 3))
sketch10.addConstraint(Sketcher.Constraint("Horizontal", 12, 3, 16, 3))
sketch10.addConstraint(Sketcher.Constraint("Horizontal", 14, 3, 18, 3))
sketch10.addConstraint(Sketcher.Constraint("Horizontal", 16, 3, 20, 3))
sketch10.addConstraint(Sketcher.Constraint("Horizontal", 18, 3, 22, 3))
sketch10.addConstraint(Sketcher.Constraint("Radius", 0, Q("2.5 mm")))
sketch10.addConstraint(Sketcher.Constraint("DistanceY", 1, 1, 1, 2, Q("30 mm")))
sketch10.addConstraint(Sketcher.Constraint("DistanceX", 0, 3, 4, 3, Q("8 mm")))
sketch10.addConstraint(Sketcher.Constraint("DistanceX", 4, 3, 8, 3, Q("8 mm")))
sketch10.addConstraint(Sketcher.Constraint("DistanceX", 8, 3, 12, 3, Q("8 mm")))
sketch10.addConstraint(Sketcher.Constraint("DistanceX", 12, 3, 16, 3, Q("8 mm")))
sketch10.addConstraint(Sketcher.Constraint("DistanceX", 16, 3, 20, 3, Q("8 mm")))
sketch10.addConstraint(Sketcher.Constraint("DistanceX", -1, 1, 0, 3, Q("42.31937 mm")))
sketch10.addConstraint(Sketcher.Constraint("DistanceY", 0, 3, -1, 1, Q("90.12404 mm")))
pocket6 = doc.addObject("PartDesign::Pocket", "Pocket005")
body.addObject(pocket6)
pocket6.Profile = sketch10
pocket6.Length = 5

# Sketch on XZ plane
sketch11 = doc.addObject("Sketcher::SketchObject", "Sketch010")
body.addObject(sketch11)
sketch11.AttachmentSupport = (doc.XZ_Plane, [""])
sketch11.MapMode = "FlatFace"
sketch11.AttachmentOffset = App.Placement(V(0, 0, 29.6775), App.Rotation())
add_polygon(sketch11, [(165.598978, 11.25481), (165.598978, 3.25481), (171.598978, 3.25481), (171.598978, 11.25481)])  # lines 0-3
add_polygon(sketch11, [(27.984795, 11.198986), (27.984795, 3.198986), (33.984795, 3.198986), (33.984795, 11.198986)])  # lines 4-7
sketch11.addConstraint(Sketcher.Constraint("Vertical", 0))
sketch11.addConstraint(Sketcher.Constraint("Horizontal", 1))
sketch11.addConstraint(Sketcher.Constraint("Vertical", 2))
sketch11.addConstraint(Sketcher.Constraint("Horizontal", 3))
sketch11.addConstraint(Sketcher.Constraint("Vertical", 4))
sketch11.addConstraint(Sketcher.Constraint("Horizontal", 5))
sketch11.addConstraint(Sketcher.Constraint("Vertical", 6))
sketch11.addConstraint(Sketcher.Constraint("Horizontal", 7))
sketch11.addConstraint(Sketcher.Constraint("Equal", 3, 5))
sketch11.addConstraint(Sketcher.Constraint("Equal", 2, 4))
sketch11.addConstraint(Sketcher.Constraint("DistanceX", 1, 1, 1, 2, Q("6 mm")))
sketch11.addConstraint(Sketcher.Constraint("DistanceY", 0, 2, 0, 1, Q("8 mm")))
sketch11.addConstraint(Sketcher.Constraint("DistanceY", -1, 1, 0, 2, Q("3.25481 mm")))
sketch11.addConstraint(Sketcher.Constraint("DistanceX", -1, 1, 0, 2, Q("165.598978 mm")))
sketch11.addConstraint(Sketcher.Constraint("DistanceX", -1, 1, 4, 2, Q("27.984795 mm")))
sketch11.addConstraint(Sketcher.Constraint("DistanceY", -1, 1, 4, 2, Q("3.198986 mm")))
pad5 = doc.addObject("PartDesign::Pad", "Pad004")
body.addObject(pad5)
pad5.Profile = sketch11
pad5.Length = 8

# Sketch on XZ plane
sketch12 = doc.addObject("Sketcher::SketchObject", "Sketch011")
body.addObject(sketch12)
sketch12.AttachmentSupport = (doc.XZ_Plane, [""])
sketch12.MapMode = "FlatFace"
sketch12.AttachmentOffset = App.Placement(V(0, 0, 138.67749), App.Rotation())
add_polygon(sketch12, [(33.980019, 11.152398), (33.980019, 3.152398), (27.980019, 3.152398), (27.980019, 11.152398)])  # lines 0-3
add_polygon(sketch12, [(171.610458, 11.248077), (171.610458, 3.248077), (165.610458, 3.248077), (165.610458, 11.248077)])  # lines 4-7
sketch12.addConstraint(Sketcher.Constraint("Vertical", 0))
sketch12.addConstraint(Sketcher.Constraint("Horizontal", 1))
sketch12.addConstraint(Sketcher.Constraint("Vertical", 2))
sketch12.addConstraint(Sketcher.Constraint("Horizontal", 3))
sketch12.addConstraint(Sketcher.Constraint("Vertical", 4))
sketch12.addConstraint(Sketcher.Constraint("Horizontal", 5))
sketch12.addConstraint(Sketcher.Constraint("Vertical", 6))
sketch12.addConstraint(Sketcher.Constraint("Horizontal", 7))
sketch12.addConstraint(Sketcher.Constraint("Equal", 3, 5))
sketch12.addConstraint(Sketcher.Constraint("Equal", 2, 4))
sketch12.addConstraint(Sketcher.Constraint("DistanceX", 1, 2, 1, 1, Q("6 mm")))
sketch12.addConstraint(Sketcher.Constraint("DistanceY", 0, 2, 0, 1, Q("8 mm")))
sketch12.addConstraint(Sketcher.Constraint("DistanceX", -1, 1, 0, 2, Q("33.980019 mm")))
sketch12.addConstraint(Sketcher.Constraint("DistanceX", -1, 1, 4, 2, Q("171.610458 mm")))
sketch12.addConstraint(Sketcher.Constraint("DistanceY", 0, 2, 4, 2, Q("0.095679 mm")))
sketch12.addConstraint(Sketcher.Constraint("DistanceY", -1, 1, 0, 2, Q("3.152398 mm")))
pad6 = doc.addObject("PartDesign::Pad", "Pad005")
body.addObject(pad6)
pad6.Profile = sketch12
pad6.Length = 8
pad6.Reversed = True

# Sketch on YZ plane
sketch13 = doc.addObject("Sketcher::SketchObject", "Sketch012")
body.addObject(sketch13)
sketch13.AttachmentSupport = (doc.YZ_Plane, [""])
sketch13.MapMode = "FlatFace"
sketch13.AttachmentOffset = App.Placement(V(0, 0, 27.984795), App.Rotation())
sketch13.addGeometry(Part.Circle(V(-33.567612, 7.141162, 0), V(0, 0, 1), 1.5), False)
sketch13.addGeometry(Part.Circle(V(-134.571213, 7.150399, 0), V(0, 0, 1), 1.5), False)
sketch13.addConstraint(Sketcher.Constraint("Equal", 0, 1))
sketch13.addConstraint(Sketcher.Constraint("Diameter", 0, Q("3 mm")))
sketch13.addConstraint(Sketcher.Constraint("DistanceY", -1, 1, 1, 3, Q("7.150399 mm")))
sketch13.addConstraint(Sketcher.Constraint("DistanceX", 1, 3, 0, 3, Q("101.003601 mm")))
sketch13.addConstraint(Sketcher.Constraint("DistanceX", 0, 3, -1, 1, Q("33.567612 mm")))
sketch13.addConstraint(Sketcher.Constraint("DistanceY", -1, 1, 0, 3, Q("7.141162 mm")))
pocket7 = doc.addObject("PartDesign::Pocket", "Pocket006")
body.addObject(pocket7)
pocket7.Profile = sketch13
pocket7.Length = 10
pocket7.Reversed = True

# Sketch on YZ plane
sketch14 = doc.addObject("Sketcher::SketchObject", "Sketch013")
body.addObject(sketch14)
sketch14.AttachmentSupport = (doc.YZ_Plane, [""])
sketch14.MapMode = "FlatFace"
sketch14.AttachmentOffset = App.Placement(V(0, 0, 171.610458), App.Rotation())
sketch14.addGeometry(Part.Circle(V(-134.832733, 7.230164, 0), V(0, 0, 1), 1.5), False)
sketch14.addGeometry(Part.Circle(V(-33.852489, 7.223049, 0), V(0, 0, 1), 1.5), False)
sketch14.addConstraint(Sketcher.Constraint("Equal", 0, 1))
sketch14.addConstraint(Sketcher.Constraint("Diameter", 0, Q("3 mm")))
sketch14.addConstraint(Sketcher.Constraint("DistanceX", 1, 3, -1, 1, Q("33.852489 mm")))
sketch14.addConstraint(Sketcher.Constraint("DistanceY", -1, 1, 1, 3, Q("7.223049 mm")))
sketch14.addConstraint(Sketcher.Constraint("DistanceX", 0, 3, -1, 1, Q("134.832733 mm")))
sketch14.addConstraint(Sketcher.Constraint("DistanceY", -1, 1, 0, 3, Q("7.230164 mm")))
pocket8 = doc.addObject("PartDesign::Pocket", "Pocket007")
body.addObject(pocket8)
pocket8.Profile = sketch14
pocket8.Length = 10
doc.recompute()

fillet = doc.addObject("PartDesign::Fillet", "Fillet")
body.addObject(fillet)
fillet.Base = (pocket8, edges_at(pocket8, [
    (24.883, -84.177, 0),
    (24.883, -28.177, 43),
    (24.883, -140.177, 43),
    (174.883, -140.177, 43),
    (174.883, -84.177, 0),
    (174.883, -28.177, 43),
]))
fillet.Radius = 2
doc.recompute()

fillet2 = doc.addObject("PartDesign::Fillet", "Fillet001")
body.addObject(fillet2)
fillet2.Base = (fillet, edges_at(fillet, [
    (63.894, -26.677, 24.609),
    (49.644, -26.677, 17.609),
    (63.894, -26.677, 10.609),
    (78.144, -26.677, 17.609),
]))
fillet2.Radius = 1.5

doc.recompute()
